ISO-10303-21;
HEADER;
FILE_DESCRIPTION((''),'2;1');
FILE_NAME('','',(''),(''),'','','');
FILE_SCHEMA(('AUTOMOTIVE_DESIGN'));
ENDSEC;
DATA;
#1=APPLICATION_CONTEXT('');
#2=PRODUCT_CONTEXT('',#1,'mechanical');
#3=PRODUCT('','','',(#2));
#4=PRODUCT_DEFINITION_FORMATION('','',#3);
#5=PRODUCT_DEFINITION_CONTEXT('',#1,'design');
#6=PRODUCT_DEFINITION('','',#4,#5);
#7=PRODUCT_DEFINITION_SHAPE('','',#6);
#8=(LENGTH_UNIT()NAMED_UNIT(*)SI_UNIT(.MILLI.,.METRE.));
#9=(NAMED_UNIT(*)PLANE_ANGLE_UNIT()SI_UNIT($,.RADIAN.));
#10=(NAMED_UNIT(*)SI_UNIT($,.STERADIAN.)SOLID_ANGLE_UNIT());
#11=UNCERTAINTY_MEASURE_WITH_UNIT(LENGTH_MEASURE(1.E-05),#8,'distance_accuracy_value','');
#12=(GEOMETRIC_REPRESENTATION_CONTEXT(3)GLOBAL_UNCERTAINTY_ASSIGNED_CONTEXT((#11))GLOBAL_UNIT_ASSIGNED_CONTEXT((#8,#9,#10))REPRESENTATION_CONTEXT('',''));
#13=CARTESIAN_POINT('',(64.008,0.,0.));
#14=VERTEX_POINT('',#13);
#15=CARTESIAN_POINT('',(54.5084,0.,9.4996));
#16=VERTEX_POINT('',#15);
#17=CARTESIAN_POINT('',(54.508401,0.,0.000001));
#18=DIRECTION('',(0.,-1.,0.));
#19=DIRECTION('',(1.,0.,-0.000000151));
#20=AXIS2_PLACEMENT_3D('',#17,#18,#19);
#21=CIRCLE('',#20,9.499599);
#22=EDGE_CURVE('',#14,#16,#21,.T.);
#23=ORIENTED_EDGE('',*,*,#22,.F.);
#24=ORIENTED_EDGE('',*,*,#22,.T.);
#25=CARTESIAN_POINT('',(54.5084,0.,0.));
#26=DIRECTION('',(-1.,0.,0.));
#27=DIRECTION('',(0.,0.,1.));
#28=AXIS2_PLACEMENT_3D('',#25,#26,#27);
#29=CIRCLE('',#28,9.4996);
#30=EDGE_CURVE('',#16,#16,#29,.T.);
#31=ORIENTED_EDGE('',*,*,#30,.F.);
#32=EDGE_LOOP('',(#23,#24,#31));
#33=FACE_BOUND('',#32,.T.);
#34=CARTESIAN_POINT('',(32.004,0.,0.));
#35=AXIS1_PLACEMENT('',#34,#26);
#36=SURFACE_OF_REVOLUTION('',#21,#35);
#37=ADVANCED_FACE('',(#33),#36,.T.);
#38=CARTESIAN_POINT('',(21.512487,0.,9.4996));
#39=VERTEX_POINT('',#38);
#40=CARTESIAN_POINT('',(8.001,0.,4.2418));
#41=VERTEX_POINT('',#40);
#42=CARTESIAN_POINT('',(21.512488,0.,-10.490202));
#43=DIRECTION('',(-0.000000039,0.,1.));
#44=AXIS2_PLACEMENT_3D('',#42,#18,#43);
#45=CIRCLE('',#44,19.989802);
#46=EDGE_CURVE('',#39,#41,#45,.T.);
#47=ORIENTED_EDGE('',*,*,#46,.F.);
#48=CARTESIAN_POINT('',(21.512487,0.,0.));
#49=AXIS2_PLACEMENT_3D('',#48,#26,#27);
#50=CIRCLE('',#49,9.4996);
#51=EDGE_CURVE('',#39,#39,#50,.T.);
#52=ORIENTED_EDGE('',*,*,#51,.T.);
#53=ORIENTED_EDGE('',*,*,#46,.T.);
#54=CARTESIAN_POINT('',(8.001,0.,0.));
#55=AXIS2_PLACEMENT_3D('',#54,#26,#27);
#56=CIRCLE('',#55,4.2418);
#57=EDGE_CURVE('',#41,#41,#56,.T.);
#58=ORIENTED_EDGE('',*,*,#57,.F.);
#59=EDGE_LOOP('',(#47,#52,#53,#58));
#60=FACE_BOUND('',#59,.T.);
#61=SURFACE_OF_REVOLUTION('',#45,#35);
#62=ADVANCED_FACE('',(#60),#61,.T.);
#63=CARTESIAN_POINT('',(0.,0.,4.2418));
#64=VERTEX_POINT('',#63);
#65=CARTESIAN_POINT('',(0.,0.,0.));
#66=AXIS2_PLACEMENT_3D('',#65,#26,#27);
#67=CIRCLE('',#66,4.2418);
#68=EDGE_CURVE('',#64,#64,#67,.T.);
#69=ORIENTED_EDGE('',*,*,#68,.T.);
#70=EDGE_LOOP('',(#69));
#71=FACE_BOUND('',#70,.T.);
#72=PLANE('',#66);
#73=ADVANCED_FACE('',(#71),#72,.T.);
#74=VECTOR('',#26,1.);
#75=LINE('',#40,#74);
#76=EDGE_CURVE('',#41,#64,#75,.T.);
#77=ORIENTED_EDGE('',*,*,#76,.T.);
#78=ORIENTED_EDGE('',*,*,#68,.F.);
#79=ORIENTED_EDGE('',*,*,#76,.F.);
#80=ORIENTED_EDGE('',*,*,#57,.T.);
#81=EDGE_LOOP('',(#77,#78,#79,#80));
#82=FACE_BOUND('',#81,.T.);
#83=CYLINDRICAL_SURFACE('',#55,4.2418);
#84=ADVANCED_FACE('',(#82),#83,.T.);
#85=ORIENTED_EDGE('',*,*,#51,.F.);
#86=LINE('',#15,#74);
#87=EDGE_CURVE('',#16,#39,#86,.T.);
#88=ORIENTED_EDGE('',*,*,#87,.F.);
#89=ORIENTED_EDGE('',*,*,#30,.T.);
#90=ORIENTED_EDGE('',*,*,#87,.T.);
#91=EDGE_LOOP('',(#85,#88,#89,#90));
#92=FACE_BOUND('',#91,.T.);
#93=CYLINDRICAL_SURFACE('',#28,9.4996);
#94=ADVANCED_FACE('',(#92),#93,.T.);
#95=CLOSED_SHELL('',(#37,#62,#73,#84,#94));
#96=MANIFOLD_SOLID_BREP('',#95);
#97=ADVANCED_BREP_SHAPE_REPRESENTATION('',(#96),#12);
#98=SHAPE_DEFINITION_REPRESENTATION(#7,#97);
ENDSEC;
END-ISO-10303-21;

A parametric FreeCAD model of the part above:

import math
import FreeCAD as App
import Part
import Sketcher
Q = App.Units.Quantity

doc = App.newDocument("Part")
body = doc.addObject("PartDesign::Body", "Body")

sketch1 = doc.addObject("Sketcher::SketchObject", "Sketch")
body.addObject(sketch1)
sketch1.AttachmentSupport = (doc.XZ_Plane, [""])
sketch1.MapMode = "FlatFace"
sketch1.addGeometry([
    Part.LineSegment(App.Vector(0, 4.2418, 0), App.Vector(0, 0, 0)),
    Part.LineSegment(App.Vector(0, 0, 0), App.Vector(64.008, 0, 0)),
    Part.ArcOfCircle(Part.Circle(App.Vector(54.508401, 0.000001, 0), App.Vector(0, 0, 1), 9.499599), math.radians(-0.000009), math.radians(90.000009)),
    Part.LineSegment(App.Vector(54.5084, 9.4996, 0), App.Vector(21.512487, 9.4996, 0)),
    Part.ArcOfCircle(Part.Circle(App.Vector(21.512488, -10.490202, 0), App.Vector(0, 0, 1), 19.989802), math.radians(90.000002), math.radians(132.525559)),
    Part.LineSegment(App.Vector(8.001, 4.2418, 0), App.Vector(0, 4.2418, 0)),
], False)
sketch1.addConstraint([
    Sketcher.Constraint("Coincident", 0, 2, 1, 1),
    Sketcher.Constraint("Coincident", 1, 2, 2, 1),
    Sketcher.Constraint("Tangent", 2, 2, 3, 1),
    Sketcher.Constraint("Tangent", 3, 2, 4, 1),
    Sketcher.Constraint("Coincident", 4, 2, 5, 1),
    Sketcher.Constraint("Coincident", 5, 2, 0, 1),
    Sketcher.Constraint("Vertical", 0),
    Sketcher.Constraint("Horizontal", 1),
    Sketcher.Constraint("Horizontal", 3),
    Sketcher.Constraint("Horizontal", 5),
    Sketcher.Constraint("Coincident", 0, 2, -1, 1),
    Sketcher.Constraint("PointOnObject", 2, 3, -1),
    Sketcher.Constraint("Radius", 2, Q("0.3739999 in")),
    Sketcher.Constraint("Radius", 4, Q("0.7870001 in")),
    Sketcher.Constraint("DistanceX", 1, 1, 1, 2, Q("2.52 in")),
    Sketcher.Constraint("DistanceX", 5, 2, 5, 1, Q("0.315 in")),
    Sketcher.Constraint("DistanceY", 0, 2, 0, 1, Q("0.167 in")),
])
revolution = doc.addObject("PartDesign::Revolution", "Revolution")
body.addObject(revolution)
revolution.Profile = sketch1
revolution.ReferenceAxis = (sketch1, ["H_Axis"])
revolution.Angle = 360

doc.recompute()
